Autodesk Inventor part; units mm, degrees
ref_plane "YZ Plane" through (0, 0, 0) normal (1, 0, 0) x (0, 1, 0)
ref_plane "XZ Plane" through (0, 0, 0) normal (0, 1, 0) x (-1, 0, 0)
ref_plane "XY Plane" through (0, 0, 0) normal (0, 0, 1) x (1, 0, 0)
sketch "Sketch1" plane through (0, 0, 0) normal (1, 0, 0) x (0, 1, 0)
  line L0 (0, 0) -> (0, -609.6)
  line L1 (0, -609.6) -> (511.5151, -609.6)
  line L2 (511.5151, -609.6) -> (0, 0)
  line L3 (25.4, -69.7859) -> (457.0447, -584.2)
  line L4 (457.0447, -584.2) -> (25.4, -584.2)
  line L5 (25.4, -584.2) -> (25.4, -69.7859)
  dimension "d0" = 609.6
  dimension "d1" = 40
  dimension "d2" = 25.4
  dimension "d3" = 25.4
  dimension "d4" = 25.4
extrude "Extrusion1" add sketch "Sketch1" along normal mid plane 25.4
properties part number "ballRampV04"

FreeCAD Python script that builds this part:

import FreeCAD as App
import Part
import Sketcher
Q = App.Units.Quantity


def add_polygon(sketch, points):
    """Adds a closed chain of lines whose ends are joined by coincident constraints."""
    first, n = sketch.GeometryCount, len(points)
    for a, b in zip(points, points[1:] + points[:1]):
        sketch.addGeometry(Part.LineSegment(App.Vector(*a, 0), App.Vector(*b, 0)), False)
    for i in range(n):
        sketch.addConstraint(Sketcher.Constraint("Coincident", first + i, 2, first + (i + 1) % n, 1))

doc = App.newDocument("Part")
body = doc.addObject("PartDesign::Body", "Body")

# Sketch on YZ plane
sketch1 = body.newObject("Sketcher::SketchObject", "Sketch")
sketch1.AttachmentSupport = (doc.getObject("YZ_Plane"), [""])
sketch1.MapMode = "FlatFace"
add_polygon(sketch1, [(511.5151, -609.6), (0, 0), (0, -609.6)])  # lines 0-2
add_polygon(sketch1, [(25.4, -584.2), (25.4, -69.7859), (457.0447, -584.2)])  # lines 3-5
sketch1.addConstraint(Sketcher.Constraint("Vertical", 1))
sketch1.addConstraint(Sketcher.Constraint("Horizontal", 2))
sketch1.addConstraint(Sketcher.Constraint("Vertical", 3))
sketch1.addConstraint(Sketcher.Constraint("Horizontal", 5))
sketch1.addConstraint(Sketcher.Constraint("Coincident", 0, 2, -1, 1))
sketch1.addConstraint(Sketcher.Constraint("Parallel", 0, 4))
sketch1.addConstraint(Sketcher.Constraint("DistanceY", 1, 2, 1, 1, Q("24 in")))
sketch1.addConstraint(Sketcher.Constraint("DistanceX", -1, 1, 3, 2, Q("1 in")))
sketch1.addConstraint(Sketcher.Constraint("DistanceY", 2, 2, 4, 2, Q("1 in")))
sketch1.addConstraint(Sketcher.Constraint("Angle", 0, Q("130 deg")))
sketch1.addConstraint(Sketcher.Constraint("Distance", 4, Q("26.4378 in")))
pad1 = body.newObject("PartDesign::Pad", "Pad")
pad1.Profile = sketch1
pad1.Length = Q("1 in")
pad1.Midplane = True

doc.recompute()
